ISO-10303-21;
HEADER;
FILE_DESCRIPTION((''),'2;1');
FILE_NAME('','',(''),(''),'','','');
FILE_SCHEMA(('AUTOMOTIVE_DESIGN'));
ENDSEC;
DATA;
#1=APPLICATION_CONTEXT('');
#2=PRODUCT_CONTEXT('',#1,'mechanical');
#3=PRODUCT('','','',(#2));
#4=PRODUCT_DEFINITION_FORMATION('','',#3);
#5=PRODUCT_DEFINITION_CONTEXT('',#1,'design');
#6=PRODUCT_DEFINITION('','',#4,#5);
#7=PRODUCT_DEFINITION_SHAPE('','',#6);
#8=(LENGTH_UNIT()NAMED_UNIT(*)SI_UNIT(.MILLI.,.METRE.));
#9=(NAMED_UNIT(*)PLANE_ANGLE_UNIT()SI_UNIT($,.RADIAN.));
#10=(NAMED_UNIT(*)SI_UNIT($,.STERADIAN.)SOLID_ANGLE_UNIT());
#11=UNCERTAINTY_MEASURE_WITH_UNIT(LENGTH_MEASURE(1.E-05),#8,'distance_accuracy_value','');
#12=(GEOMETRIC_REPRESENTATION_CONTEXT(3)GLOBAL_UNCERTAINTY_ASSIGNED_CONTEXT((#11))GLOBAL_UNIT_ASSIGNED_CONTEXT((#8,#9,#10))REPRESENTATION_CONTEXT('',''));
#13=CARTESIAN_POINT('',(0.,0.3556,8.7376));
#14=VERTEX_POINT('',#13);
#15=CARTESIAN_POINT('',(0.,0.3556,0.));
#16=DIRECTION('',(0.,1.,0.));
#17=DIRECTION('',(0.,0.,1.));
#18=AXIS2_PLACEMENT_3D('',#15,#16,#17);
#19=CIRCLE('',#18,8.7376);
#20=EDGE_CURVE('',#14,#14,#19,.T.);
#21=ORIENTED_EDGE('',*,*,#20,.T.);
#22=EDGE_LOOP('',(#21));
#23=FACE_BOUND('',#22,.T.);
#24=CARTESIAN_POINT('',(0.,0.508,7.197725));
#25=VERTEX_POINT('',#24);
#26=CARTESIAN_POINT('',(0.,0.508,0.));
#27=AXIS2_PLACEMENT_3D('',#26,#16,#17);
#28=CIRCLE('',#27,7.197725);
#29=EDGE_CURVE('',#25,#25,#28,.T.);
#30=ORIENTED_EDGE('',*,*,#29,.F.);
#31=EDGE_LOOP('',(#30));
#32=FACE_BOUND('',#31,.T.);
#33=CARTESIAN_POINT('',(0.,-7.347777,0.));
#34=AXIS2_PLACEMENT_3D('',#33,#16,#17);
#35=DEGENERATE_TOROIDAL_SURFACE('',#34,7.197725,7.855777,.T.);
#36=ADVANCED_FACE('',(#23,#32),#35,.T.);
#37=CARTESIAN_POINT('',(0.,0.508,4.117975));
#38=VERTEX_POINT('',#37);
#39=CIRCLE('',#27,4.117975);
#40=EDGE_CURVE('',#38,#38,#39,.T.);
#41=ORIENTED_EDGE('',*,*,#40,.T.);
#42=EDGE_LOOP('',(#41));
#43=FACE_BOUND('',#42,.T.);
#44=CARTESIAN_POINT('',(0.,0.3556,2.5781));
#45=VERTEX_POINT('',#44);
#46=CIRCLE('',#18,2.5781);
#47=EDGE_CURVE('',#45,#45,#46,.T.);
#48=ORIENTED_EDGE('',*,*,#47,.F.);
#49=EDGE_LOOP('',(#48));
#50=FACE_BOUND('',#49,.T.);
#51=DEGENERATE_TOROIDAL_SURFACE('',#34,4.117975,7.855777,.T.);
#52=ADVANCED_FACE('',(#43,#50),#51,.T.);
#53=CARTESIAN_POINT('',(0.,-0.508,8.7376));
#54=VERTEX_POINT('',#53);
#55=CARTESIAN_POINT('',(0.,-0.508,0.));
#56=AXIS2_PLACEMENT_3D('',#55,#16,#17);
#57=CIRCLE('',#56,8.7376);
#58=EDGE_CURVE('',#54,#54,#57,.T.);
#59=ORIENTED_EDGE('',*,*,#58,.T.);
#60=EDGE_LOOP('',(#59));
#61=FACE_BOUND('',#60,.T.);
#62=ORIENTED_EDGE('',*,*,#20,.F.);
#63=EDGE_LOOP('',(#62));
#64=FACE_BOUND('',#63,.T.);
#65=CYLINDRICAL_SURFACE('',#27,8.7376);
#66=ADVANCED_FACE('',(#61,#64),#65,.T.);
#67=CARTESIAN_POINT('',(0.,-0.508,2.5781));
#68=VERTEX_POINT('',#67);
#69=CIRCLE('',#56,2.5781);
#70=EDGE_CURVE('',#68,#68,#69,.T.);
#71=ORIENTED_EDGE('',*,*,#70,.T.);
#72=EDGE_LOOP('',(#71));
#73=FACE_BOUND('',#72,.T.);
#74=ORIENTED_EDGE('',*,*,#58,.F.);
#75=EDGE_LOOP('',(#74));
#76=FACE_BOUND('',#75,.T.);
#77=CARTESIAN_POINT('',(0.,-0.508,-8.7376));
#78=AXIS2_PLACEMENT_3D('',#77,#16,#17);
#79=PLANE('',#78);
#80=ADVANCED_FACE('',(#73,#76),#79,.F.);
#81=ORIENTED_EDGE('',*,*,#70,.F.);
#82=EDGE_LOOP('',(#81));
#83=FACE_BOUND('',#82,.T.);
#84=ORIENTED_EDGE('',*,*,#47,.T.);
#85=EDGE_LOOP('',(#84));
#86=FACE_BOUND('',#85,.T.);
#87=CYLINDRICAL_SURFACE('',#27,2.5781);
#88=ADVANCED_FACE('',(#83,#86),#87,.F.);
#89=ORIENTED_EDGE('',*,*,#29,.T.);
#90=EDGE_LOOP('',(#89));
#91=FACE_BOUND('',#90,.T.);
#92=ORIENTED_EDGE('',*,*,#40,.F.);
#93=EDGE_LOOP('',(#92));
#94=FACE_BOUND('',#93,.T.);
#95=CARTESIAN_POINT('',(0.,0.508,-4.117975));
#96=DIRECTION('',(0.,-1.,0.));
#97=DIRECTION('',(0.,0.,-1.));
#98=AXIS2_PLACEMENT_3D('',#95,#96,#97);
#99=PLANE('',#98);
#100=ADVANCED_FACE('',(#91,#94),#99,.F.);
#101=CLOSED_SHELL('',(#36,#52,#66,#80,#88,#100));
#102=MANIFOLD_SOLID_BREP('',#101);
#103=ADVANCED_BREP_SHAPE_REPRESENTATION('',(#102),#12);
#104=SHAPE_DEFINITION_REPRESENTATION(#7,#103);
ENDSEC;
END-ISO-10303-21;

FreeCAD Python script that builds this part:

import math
import FreeCAD as App
import Part
import Sketcher

V = App.Vector
Q = App.Units.Quantity

doc = App.newDocument("Part")
body = doc.addObject("PartDesign::Body", "Body")

# Sketch on YZ plane
sketch1 = doc.addObject("Sketcher::SketchObject", "Sketch")
body.addObject(sketch1)
sketch1.AttachmentSupport = (doc.YZ_Plane, [""])
sketch1.MapMode = "FlatFace"
sketch1.addGeometry([
    Part.LineSegment(V(-0.5, -2.6, 0), V(-0.5, -8.7, 0)),  # 0
    Part.LineSegment(V(-0.5, -8.7, 0), V(0.4, -8.7, 0)),  # 1
    Part.ArcOfCircle(Part.Circle(V(-7.3, -7.2, 0), V(0, 0, 1), 7.9), math.radians(-11.3), math.radians(0)),  # 2
    Part.LineSegment(V(0.5, -7.2, 0), V(0.5, -4.1, 0)),  # 3
    Part.ArcOfCircle(Part.Circle(V(-7.3, -4.1, 0), V(0, 0, 1), 7.9), math.radians(0), math.radians(11.3)),  # 4
    Part.LineSegment(V(0.4, -2.6, 0), V(-0.5, -2.6, 0)),  # 5
], False)
sketch1.addConstraint([
    Sketcher.Constraint("Coincident", 0, 2, 1, 1),
    Sketcher.Constraint("Coincident", 1, 2, 2, 1),
    Sketcher.Constraint("Tangent", 2, 2, 3, 1),
    Sketcher.Constraint("Tangent", 3, 2, 4, 1),
    Sketcher.Constraint("Coincident", 4, 2, 5, 1),
    Sketcher.Constraint("Coincident", 5, 2, 0, 1),
    Sketcher.Constraint("Vertical", 0),
    Sketcher.Constraint("Horizontal", 1),
    Sketcher.Constraint("Vertical", 3),
    Sketcher.Constraint("Horizontal", 5),
    Sketcher.Constraint("Equal", 2, 4),
    Sketcher.Constraint("Vertical", 1, 2, 4, 2),
    Sketcher.Constraint("DistanceX", 1, 1, 1, 2, Q("0.034 in")),
    Sketcher.Constraint("DistanceX", 0, 2, -1, 1, Q("0.02 in")),
    Sketcher.Constraint("DistanceX", -1, 1, 2, 2, Q("0.02 in")),
    Sketcher.Constraint("DistanceY", 0, 2, 0, 1, Q("0.2425 in")),
    Sketcher.Constraint("DistanceY", 0, 2, -1, 1, Q("0.344 in")),
    Sketcher.Constraint("Radius", 2, Q("7.855777 mm")),
])
revolution = doc.addObject("PartDesign::Revolution", "Revolution")
body.addObject(revolution)
revolution.Profile = sketch1
revolution.ReferenceAxis = (sketch1, ["H_Axis"])
revolution.Angle = 360

doc.recompute()
